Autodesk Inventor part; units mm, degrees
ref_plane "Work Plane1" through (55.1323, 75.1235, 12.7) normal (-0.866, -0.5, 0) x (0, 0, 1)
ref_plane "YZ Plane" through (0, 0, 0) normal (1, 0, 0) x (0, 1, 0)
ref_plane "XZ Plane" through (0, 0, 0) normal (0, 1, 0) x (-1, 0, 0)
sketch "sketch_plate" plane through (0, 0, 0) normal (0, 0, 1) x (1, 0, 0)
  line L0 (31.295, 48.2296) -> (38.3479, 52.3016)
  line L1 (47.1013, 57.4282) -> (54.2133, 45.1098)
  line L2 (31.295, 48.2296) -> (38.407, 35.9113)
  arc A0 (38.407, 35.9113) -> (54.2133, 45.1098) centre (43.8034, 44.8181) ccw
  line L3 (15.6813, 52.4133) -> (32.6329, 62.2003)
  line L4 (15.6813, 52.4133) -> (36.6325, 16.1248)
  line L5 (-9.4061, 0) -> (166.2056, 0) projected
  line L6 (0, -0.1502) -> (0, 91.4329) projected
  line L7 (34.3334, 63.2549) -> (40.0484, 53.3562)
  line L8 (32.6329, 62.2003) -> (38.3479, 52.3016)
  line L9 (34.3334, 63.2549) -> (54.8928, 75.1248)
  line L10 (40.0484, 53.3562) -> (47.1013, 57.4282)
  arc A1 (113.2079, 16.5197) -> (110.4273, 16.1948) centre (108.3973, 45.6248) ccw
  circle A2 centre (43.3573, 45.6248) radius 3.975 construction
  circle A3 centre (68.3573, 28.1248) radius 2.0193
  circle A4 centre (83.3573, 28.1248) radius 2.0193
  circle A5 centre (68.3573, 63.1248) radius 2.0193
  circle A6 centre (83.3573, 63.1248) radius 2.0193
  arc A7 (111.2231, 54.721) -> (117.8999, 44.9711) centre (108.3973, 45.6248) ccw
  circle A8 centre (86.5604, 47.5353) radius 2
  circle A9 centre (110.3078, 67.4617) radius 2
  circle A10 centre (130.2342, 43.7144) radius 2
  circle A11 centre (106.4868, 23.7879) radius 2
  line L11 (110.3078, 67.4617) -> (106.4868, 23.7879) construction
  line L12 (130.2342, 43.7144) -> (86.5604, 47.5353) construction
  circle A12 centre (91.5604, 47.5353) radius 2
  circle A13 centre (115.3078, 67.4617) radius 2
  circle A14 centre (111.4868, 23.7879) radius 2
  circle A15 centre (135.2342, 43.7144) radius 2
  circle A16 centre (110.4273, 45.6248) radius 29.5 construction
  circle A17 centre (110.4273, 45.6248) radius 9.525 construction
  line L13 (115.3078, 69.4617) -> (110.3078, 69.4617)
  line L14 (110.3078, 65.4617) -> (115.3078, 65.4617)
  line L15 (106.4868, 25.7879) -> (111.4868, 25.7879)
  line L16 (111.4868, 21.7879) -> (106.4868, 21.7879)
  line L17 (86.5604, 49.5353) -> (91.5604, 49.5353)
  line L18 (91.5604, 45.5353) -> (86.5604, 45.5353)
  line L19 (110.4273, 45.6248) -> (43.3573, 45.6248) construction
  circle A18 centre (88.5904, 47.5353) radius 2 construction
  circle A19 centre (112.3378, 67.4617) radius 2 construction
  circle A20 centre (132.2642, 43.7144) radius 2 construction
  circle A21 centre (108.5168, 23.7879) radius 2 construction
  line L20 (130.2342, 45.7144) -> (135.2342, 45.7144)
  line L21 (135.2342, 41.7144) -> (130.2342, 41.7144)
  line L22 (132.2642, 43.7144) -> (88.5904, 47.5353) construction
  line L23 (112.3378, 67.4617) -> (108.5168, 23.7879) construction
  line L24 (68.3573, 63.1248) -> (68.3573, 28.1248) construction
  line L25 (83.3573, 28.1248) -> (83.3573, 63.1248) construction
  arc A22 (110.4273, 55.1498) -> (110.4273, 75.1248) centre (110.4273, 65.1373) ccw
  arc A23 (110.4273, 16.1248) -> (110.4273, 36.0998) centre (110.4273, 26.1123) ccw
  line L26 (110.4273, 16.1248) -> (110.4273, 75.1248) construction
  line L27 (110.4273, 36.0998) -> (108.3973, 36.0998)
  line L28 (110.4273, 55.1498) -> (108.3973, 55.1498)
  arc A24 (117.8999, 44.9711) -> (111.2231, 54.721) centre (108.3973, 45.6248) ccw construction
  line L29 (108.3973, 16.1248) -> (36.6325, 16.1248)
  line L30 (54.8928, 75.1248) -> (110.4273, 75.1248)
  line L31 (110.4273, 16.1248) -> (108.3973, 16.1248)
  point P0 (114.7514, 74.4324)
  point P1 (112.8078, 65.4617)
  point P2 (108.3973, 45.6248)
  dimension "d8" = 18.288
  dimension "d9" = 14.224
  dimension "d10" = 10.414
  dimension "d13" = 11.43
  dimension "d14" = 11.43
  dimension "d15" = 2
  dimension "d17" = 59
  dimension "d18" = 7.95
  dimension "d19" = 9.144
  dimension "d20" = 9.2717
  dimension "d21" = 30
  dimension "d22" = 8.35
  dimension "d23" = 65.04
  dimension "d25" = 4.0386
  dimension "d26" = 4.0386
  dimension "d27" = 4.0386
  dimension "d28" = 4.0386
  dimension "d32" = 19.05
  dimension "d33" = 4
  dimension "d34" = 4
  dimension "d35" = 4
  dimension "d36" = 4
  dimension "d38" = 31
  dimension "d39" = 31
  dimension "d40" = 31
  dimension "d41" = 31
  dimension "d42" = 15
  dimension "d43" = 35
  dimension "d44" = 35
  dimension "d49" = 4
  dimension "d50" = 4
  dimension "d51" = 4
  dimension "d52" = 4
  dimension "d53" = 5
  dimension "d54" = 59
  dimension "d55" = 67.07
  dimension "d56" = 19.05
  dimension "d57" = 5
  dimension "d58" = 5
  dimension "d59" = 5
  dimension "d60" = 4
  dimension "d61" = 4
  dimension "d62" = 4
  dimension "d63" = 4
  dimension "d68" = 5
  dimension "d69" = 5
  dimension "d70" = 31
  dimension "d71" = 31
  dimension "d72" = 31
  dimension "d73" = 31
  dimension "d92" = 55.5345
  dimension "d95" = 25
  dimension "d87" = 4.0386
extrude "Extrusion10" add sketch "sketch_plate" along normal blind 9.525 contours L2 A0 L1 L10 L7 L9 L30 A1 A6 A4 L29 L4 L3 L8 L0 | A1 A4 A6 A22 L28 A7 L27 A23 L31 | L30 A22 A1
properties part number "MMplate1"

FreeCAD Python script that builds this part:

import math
import FreeCAD as App
import Part
import Sketcher
from FreeCAD import Vector
Q = App.Units.Quantity

doc = App.newDocument("Part")
body = doc.addObject("PartDesign::Body", "Body")

# Sketch on XY plane
sketch1 = body.newObject("Sketcher::SketchObject", "Sketch")
sketch1.AttachmentSupport = (doc.getObject("XY_Plane"), [""])
sketch1.MapMode = "FlatFace"
sketch1.addGeometry(Part.LineSegment(Vector(38.407, 35.9113, 0), Vector(31.295, 48.2296, 0)), False)
sketch1.addGeometry(Part.LineSegment(Vector(31.295, 48.2296, 0), Vector(38.3479, 52.3016, 0)), False)
sketch1.addGeometry(Part.LineSegment(Vector(38.3479, 52.3016, 0), Vector(32.6329, 62.2003, 0)), False)
sketch1.addGeometry(Part.LineSegment(Vector(32.6329, 62.2003, 0), Vector(15.6813, 52.4133, 0)), False)
sketch1.addGeometry(Part.LineSegment(Vector(15.6813, 52.4133, 0), Vector(36.6325, 16.1248, 0)), False)
sketch1.addGeometry(Part.LineSegment(Vector(36.6325, 16.1248, 0), Vector(110.4273, 16.1248, 0)), False)
sketch1.addGeometry(Part.ArcOfCircle(Part.Circle(Vector(110.4273, 26.1123, 0), Vector(0, 0, 1), 9.9875), math.radians(-90), math.radians(90)), False)
sketch1.addGeometry(Part.LineSegment(Vector(110.4273, 36.0998, 0), Vector(108.3973, 36.0998, 0)), False)
sketch1.addGeometry(Part.ArcOfCircle(Part.Circle(Vector(108.3973, 45.6248, 0), Vector(0, 0, 1), 9.52502), math.radians(90), math.radians(270)), False)
sketch1.addGeometry(Part.LineSegment(Vector(108.3973, 55.1498, 0), Vector(110.4273, 55.1498, 0)), False)
sketch1.addGeometry(Part.ArcOfCircle(Part.Circle(Vector(110.4273, 65.1373, 0), Vector(0, 0, 1), 9.9875), math.radians(-90), math.radians(90)), False)
sketch1.addGeometry(Part.LineSegment(Vector(110.4273, 75.1248, 0), Vector(54.8928, 75.1248, 0)), False)
sketch1.addGeometry(Part.LineSegment(Vector(54.8928, 75.1248, 0), Vector(34.3334, 63.2549, 0)), False)
sketch1.addGeometry(Part.LineSegment(Vector(34.3334, 63.2549, 0), Vector(40.0484, 53.3562, 0)), False)
sketch1.addGeometry(Part.LineSegment(Vector(40.0484, 53.3562, 0), Vector(47.1013, 57.4282, 0)), False)
sketch1.addGeometry(Part.LineSegment(Vector(47.1013, 57.4282, 0), Vector(54.2133, 45.1098, 0)), False)
sketch1.addGeometry(Part.ArcOfCircle(Part.Circle(Vector(43.8034, 44.8181, 0), Vector(0, 0, 1), 10.41404), math.radians(-121.210589), math.radians(1.605088)), False)
sketch1.addGeometry(Part.Circle(Vector(83.3573, 63.1248, 0), Vector(0, 0, 1), 2.0193), False)
sketch1.addGeometry(Part.Circle(Vector(83.3573, 28.1248, 0), Vector(0, 0, 1), 2.0193), False)
sketch1.addGeometry(Part.Circle(Vector(68.3573, 28.1248, 0), Vector(0, 0, 1), 2.0193), False)
sketch1.addGeometry(Part.Circle(Vector(68.3573, 63.1248, 0), Vector(0, 0, 1), 2.0193), False)
sketch1.addGeometry(Part.LineSegment(Vector(115.3078, 65.4617, 0), Vector(110.3078, 65.4617, 0)), False)
sketch1.addGeometry(Part.ArcOfCircle(Part.Circle(Vector(110.3078, 67.4617, 0), Vector(0, 0, 1), 2), math.radians(90), math.radians(270)), False)
sketch1.addGeometry(Part.LineSegment(Vector(110.3078, 69.4617, 0), Vector(115.3078, 69.4617, 0)), False)
sketch1.addGeometry(Part.ArcOfCircle(Part.Circle(Vector(115.3078, 67.4617, 0), Vector(0, 0, 1), 2), math.radians(-90), math.radians(90)), False)
sketch1.addGeometry(Part.ArcOfCircle(Part.Circle(Vector(106.4868, 23.7879, 0), Vector(0, 0, 1), 2), math.radians(90), math.radians(270)), False)
sketch1.addGeometry(Part.LineSegment(Vector(106.4868, 25.7879, 0), Vector(111.4868, 25.7879, 0)), False)
sketch1.addGeometry(Part.ArcOfCircle(Part.Circle(Vector(111.4868, 23.7879, 0), Vector(0, 0, 1), 2), math.radians(-90), math.radians(90)), False)
sketch1.addGeometry(Part.LineSegment(Vector(111.4868, 21.7879, 0), Vector(106.4868, 21.7879, 0)), False)
sketch1.addGeometry(Part.ArcOfCircle(Part.Circle(Vector(86.5604, 47.5353, 0), Vector(0, 0, 1), 2), math.radians(90), math.radians(270)), False)
sketch1.addGeometry(Part.LineSegment(Vector(86.5604, 49.5353, 0), Vector(91.5604, 49.5353, 0)), False)
sketch1.addGeometry(Part.ArcOfCircle(Part.Circle(Vector(91.5604, 47.5353, 0), Vector(0, 0, 1), 2), math.radians(-90), math.radians(90)), False)
sketch1.addGeometry(Part.LineSegment(Vector(91.5604, 45.5353, 0), Vector(86.5604, 45.5353, 0)), False)
sketch1.addConstraint(Sketcher.Constraint("Coincident", 0, 2, 1, 1))
sketch1.addConstraint(Sketcher.Constraint("Coincident", 1, 2, 2, 1))
sketch1.addConstraint(Sketcher.Constraint("Coincident", 2, 2, 3, 1))
sketch1.addConstraint(Sketcher.Constraint("Coincident", 3, 2, 4, 1))
sketch1.addConstraint(Sketcher.Constraint("Coincident", 4, 2, 5, 1))
sketch1.addConstraint(Sketcher.Constraint("Tangent", 5, 2, 6, 1))
sketch1.addConstraint(Sketcher.Constraint("Tangent", 6, 2, 7, 1))
sketch1.addConstraint(Sketcher.Constraint("Tangent", 7, 2, 8, 2))
sketch1.addConstraint(Sketcher.Constraint("Tangent", 8, 1, 9, 1))
sketch1.addConstraint(Sketcher.Constraint("Tangent", 9, 2, 10, 1))
sketch1.addConstraint(Sketcher.Constraint("Tangent", 10, 2, 11, 1))
sketch1.addConstraint(Sketcher.Constraint("Coincident", 11, 2, 12, 1))
sketch1.addConstraint(Sketcher.Constraint("Coincident", 12, 2, 13, 1))
sketch1.addConstraint(Sketcher.Constraint("Coincident", 13, 2, 14, 1))
sketch1.addConstraint(Sketcher.Constraint("Coincident", 14, 2, 15, 1))
sketch1.addConstraint(Sketcher.Constraint("Coincident", 15, 2, 16, 2))
sketch1.addConstraint(Sketcher.Constraint("Coincident", 16, 1, 0, 1))
sketch1.addConstraint(Sketcher.Constraint("Tangent", 21, 2, 22, 2))
sketch1.addConstraint(Sketcher.Constraint("Tangent", 22, 1, 23, 1))
sketch1.addConstraint(Sketcher.Constraint("Tangent", 23, 2, 24, 2))
sketch1.addConstraint(Sketcher.Constraint("Tangent", 24, 1, 21, 1))
sketch1.addConstraint(Sketcher.Constraint("Tangent", 25, 1, 26, 1))
sketch1.addConstraint(Sketcher.Constraint("Tangent", 26, 2, 27, 2))
sketch1.addConstraint(Sketcher.Constraint("Tangent", 27, 1, 28, 1))
sketch1.addConstraint(Sketcher.Constraint("Tangent", 28, 2, 25, 2))
sketch1.addConstraint(Sketcher.Constraint("Tangent", 29, 1, 30, 1))
sketch1.addConstraint(Sketcher.Constraint("Tangent", 30, 2, 31, 2))
sketch1.addConstraint(Sketcher.Constraint("Tangent", 31, 1, 32, 1))
sketch1.addConstraint(Sketcher.Constraint("Tangent", 32, 2, 29, 2))
sketch1.addConstraint(Sketcher.Constraint("Horizontal", 5))
sketch1.addConstraint(Sketcher.Constraint("Horizontal", 7))
sketch1.addConstraint(Sketcher.Constraint("Horizontal", 9))
sketch1.addConstraint(Sketcher.Constraint("Horizontal", 11))
sketch1.addConstraint(Sketcher.Constraint("Horizontal", 21))
sketch1.addConstraint(Sketcher.Constraint("Horizontal", 23))
sketch1.addConstraint(Sketcher.Constraint("Horizontal", 26))
sketch1.addConstraint(Sketcher.Constraint("Horizontal", 28))
sketch1.addConstraint(Sketcher.Constraint("Horizontal", 30))
sketch1.addConstraint(Sketcher.Constraint("Horizontal", 32))
sketch1.addConstraint(Sketcher.Constraint("Equal", 6, 10))
sketch1.addConstraint(Sketcher.Constraint("Equal", 17, 18))
sketch1.addConstraint(Sketcher.Constraint("Equal", 18, 19))
sketch1.addConstraint(Sketcher.Constraint("Equal", 19, 20))
sketch1.addConstraint(Sketcher.Constraint("Equal", 24, 25))
sketch1.addConstraint(Sketcher.Constraint("Equal", 27, 29))
sketch1.addConstraint(Sketcher.Constraint("Perpendicular", 0, 1))
sketch1.addConstraint(Sketcher.Constraint("Perpendicular", 1, 2))
sketch1.addConstraint(Sketcher.Constraint("Perpendicular", 2, 3))
sketch1.addConstraint(Sketcher.Constraint("Perpendicular", 3, 4))
sketch1.addConstraint(Sketcher.Constraint("Perpendicular", 4, 12))
sketch1.addConstraint(Sketcher.Constraint("Perpendicular", 12, 13))
sketch1.addConstraint(Sketcher.Constraint("Perpendicular", 13, 14))
sketch1.addConstraint(Sketcher.Constraint("Perpendicular", 14, 15))
sketch1.addConstraint(Sketcher.Constraint("Horizontal", 18, 3, 19, 3))
sketch1.addConstraint(Sketcher.Constraint("Horizontal", 17, 3, 20, 3))
sketch1.addConstraint(Sketcher.Constraint("Vertical", 6, 3, 10, 3))
sketch1.addConstraint(Sketcher.Constraint("Vertical", 17, 3, 18, 3))
sketch1.addConstraint(Sketcher.Constraint("Vertical", 19, 3, 20, 3))
sketch1.addConstraint(Sketcher.Constraint("Equal", 23, 26))
sketch1.addConstraint(Sketcher.Constraint("Equal", 28, 30))
sketch1.addConstraint(Sketcher.Constraint("Equal", 2, 13))
sketch1.addConstraint(Sketcher.Constraint("Equal", 1, 14))
sketch1.addConstraint(Sketcher.Constraint("Equal", 0, 15))
sketch1.addConstraint(Sketcher.Constraint("Radius", 16, Q("0.41 in")))
sketch1.addConstraint(Sketcher.Constraint("Diameter", 17, Q("0.159 in")))
sketch1.addConstraint(Sketcher.Constraint("Angle", 1, Q("30 deg")))
sketch1.addConstraint(Sketcher.Constraint("Radius", 8, Q("0.375 in")))
sketch1.addConstraint(Sketcher.Constraint("Distance", 0, Q("0.56 in")))
sketch1.addConstraint(Sketcher.Constraint("Distance", 2, Q("0.45 in")))
sketch1.addConstraint(Sketcher.Constraint("Radius", 22, 2.0))
sketch1.addConstraint(Sketcher.Constraint("DistanceX", 11, 2, 11, 1, Q("2.1864 in")))
sketch1.addConstraint(Sketcher.Constraint("DistanceX", 21, 2, 21, 1, 5.0))
sketch1.addConstraint(Sketcher.Constraint("Radius", 6, Q("0.3932 in")))
sketch1.addConstraint(Sketcher.Constraint("DistanceY", 18, 3, 17, 3, 35.0))
sketch1.addConstraint(Sketcher.Constraint("DistanceX", 19, 3, 18, 3, 15.0))
sketch1.addConstraint(Sketcher.Constraint("DistanceX", 5, 1, 5, 2, Q("2.9053 in")))
sketch1.addConstraint(Sketcher.Constraint("DistanceX", 16, 3, 6, 3, Q("2.623 in")))
sketch1.addConstraint(Sketcher.Constraint("DistanceY", 31, 3, 10, 3, Q("0.693 in")))
sketch1.addConstraint(Sketcher.Constraint("DistanceX", 4, 2, 19, 3, Q("1.249 in")))
sketch1.addConstraint(Sketcher.Constraint("Distance", 4, Q("1.6497 in")))
sketch1.addConstraint(Sketcher.Constraint("DistanceX", 7, 2, 7, 1, 2.03))
sketch1.addConstraint(Sketcher.Constraint("DistanceX", -1, 1, 8, 3, Q("4.2676 in")))
sketch1.addConstraint(Sketcher.Constraint("DistanceY", -1, 1, 16, 3, Q("1.7645 in")))
sketch1.addConstraint(Sketcher.Constraint("DistanceX", -1, 1, 25, 3, Q("4.1924 in")))
sketch1.addConstraint(Sketcher.Constraint("DistanceX", -1, 1, 29, 3, Q("3.4079 in")))
sketch1.addConstraint(Sketcher.Constraint("DistanceY", -1, 1, 0, 2, Q("1.8988 in")))
sketch1.addConstraint(Sketcher.Constraint("DistanceX", -1, 1, 12, 2, Q("1.3517 in")))
sketch1.addConstraint(Sketcher.Constraint("DistanceY", -1, 1, 27, 1, Q("0.8578 in")))
sketch1.addConstraint(Sketcher.Constraint("DistanceX", 22, 3, 10, 3, Q("0.0047 in")))
sketch1.addConstraint(Sketcher.Constraint("DistanceY", 10, 3, 22, 3, Q("0.0915 in")))
sketch1.addConstraint(Sketcher.Constraint("DistanceY", 18, 3, 29, 3, Q("0.7642 in")))
pad1 = body.newObject("PartDesign::Pad", "Pad")
pad1.Profile = sketch1
pad1.Length = Q("0.375 in")

doc.recompute()
